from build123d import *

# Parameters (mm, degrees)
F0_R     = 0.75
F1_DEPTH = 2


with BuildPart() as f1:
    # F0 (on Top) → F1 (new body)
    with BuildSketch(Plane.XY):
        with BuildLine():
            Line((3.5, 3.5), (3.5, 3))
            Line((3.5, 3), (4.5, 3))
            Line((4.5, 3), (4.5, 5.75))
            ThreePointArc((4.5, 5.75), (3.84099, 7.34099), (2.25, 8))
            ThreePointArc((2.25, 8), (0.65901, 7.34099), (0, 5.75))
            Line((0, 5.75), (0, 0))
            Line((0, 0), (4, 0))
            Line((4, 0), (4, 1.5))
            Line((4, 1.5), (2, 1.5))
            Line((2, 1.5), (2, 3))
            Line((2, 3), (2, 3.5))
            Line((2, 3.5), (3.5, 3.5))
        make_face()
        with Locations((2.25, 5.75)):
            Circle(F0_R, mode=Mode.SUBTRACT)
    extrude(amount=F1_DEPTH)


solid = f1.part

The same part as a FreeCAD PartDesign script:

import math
import FreeCAD as App
import Part
import Sketcher
Q = App.Units.Quantity

doc = App.newDocument("Part")
body = doc.addObject("PartDesign::Body", "Body")

sketch1 = doc.addObject("Sketcher::SketchObject", "Sketch")
body.addObject(sketch1)
sketch1.AttachmentSupport = (doc.XY_Plane, [""])
sketch1.MapMode = "FlatFace"
sketch1.addGeometry([
    Part.LineSegment(App.Vector(3.5, 3.5, 0), App.Vector(3.5, 3, 0)),
    Part.LineSegment(App.Vector(3.5, 3, 0), App.Vector(4.5, 3, 0)),
    Part.LineSegment(App.Vector(4.5, 3, 0), App.Vector(4.5, 5.8, 0)),
    Part.ArcOfCircle(Part.Circle(App.Vector(2.2, 5.7, 0), App.Vector(0, 0, 1), 2.3), math.radians(0), math.radians(90)),
    Part.ArcOfCircle(Part.Circle(App.Vector(2.3, 5.7, 0), App.Vector(0, 0, 1), 2.3), math.radians(90), math.radians(180)),
    Part.LineSegment(App.Vector(0, 5.8, 0), App.Vector(0, 0, 0)),
    Part.LineSegment(App.Vector(0, 0, 0), App.Vector(4, 0, 0)),
    Part.LineSegment(App.Vector(4, 0, 0), App.Vector(4, 1.5, 0)),
    Part.LineSegment(App.Vector(4, 1.5, 0), App.Vector(2, 1.5, 0)),
    Part.LineSegment(App.Vector(2, 1.5, 0), App.Vector(2, 3.5, 0)),
    Part.LineSegment(App.Vector(2, 3.5, 0), App.Vector(3.5, 3.5, 0)),
    Part.Circle(App.Vector(2.2, 5.8, 0), App.Vector(0, 0, 1), 0.8),
], False)
sketch1.addConstraint([
    Sketcher.Constraint("Coincident", 0, 2, 1, 1),
    Sketcher.Constraint("Coincident", 1, 2, 2, 1),
    Sketcher.Constraint("Tangent", 2, 2, 3, 1),
    Sketcher.Constraint("Tangent", 3, 2, 4, 1),
    Sketcher.Constraint("Tangent", 4, 2, 5, 1),
    Sketcher.Constraint("Coincident", 5, 2, 6, 1),
    Sketcher.Constraint("Coincident", 6, 2, 7, 1),
    Sketcher.Constraint("Coincident", 7, 2, 8, 1),
    Sketcher.Constraint("Coincident", 8, 2, 9, 1),
    Sketcher.Constraint("Coincident", 9, 2, 10, 1),
    Sketcher.Constraint("Coincident", 10, 2, 0, 1),
    Sketcher.Constraint("Vertical", 0),
    Sketcher.Constraint("Horizontal", 1),
    Sketcher.Constraint("Vertical", 2),
    Sketcher.Constraint("Vertical", 5),
    Sketcher.Constraint("Horizontal", 6),
    Sketcher.Constraint("Vertical", 7),
    Sketcher.Constraint("Horizontal", 8),
    Sketcher.Constraint("Vertical", 9),
    Sketcher.Constraint("Horizontal", 10),
    Sketcher.Constraint("Coincident", 5, 2, -1, 1),
    Sketcher.Constraint("Coincident", 11, 3, 3, 3),
    Sketcher.Constraint("Equal", 3, 4),
    Sketcher.Constraint("Vertical", 11, 3, 3, 2),
    Sketcher.Constraint("Equal", 10, 7),
    Sketcher.Constraint("Equal", 8, 9),
    Sketcher.Constraint("Diameter", 11, Q("1.5 mm")),
    Sketcher.Constraint("DistanceX", 1, 1, 1, 2, Q("1 mm")),
    Sketcher.Constraint("DistanceX", 6, 1, 6, 2, Q("4 mm")),
    Sketcher.Constraint("DistanceX", 8, 2, 8, 1, Q("2 mm")),
    Sketcher.Constraint("Radius", 3, Q("2.250001 mm")),
    Sketcher.Constraint("DistanceY", 0, 2, 0, 1, Q("0.5 mm")),
    Sketcher.Constraint("DistanceY", -1, 1, 3, 2, Q("8 mm")),
])
pad1 = doc.addObject("PartDesign::Pad", "Pad")
body.addObject(pad1)
pad1.Profile = sketch1
pad1.Length = 2

doc.recompute()
